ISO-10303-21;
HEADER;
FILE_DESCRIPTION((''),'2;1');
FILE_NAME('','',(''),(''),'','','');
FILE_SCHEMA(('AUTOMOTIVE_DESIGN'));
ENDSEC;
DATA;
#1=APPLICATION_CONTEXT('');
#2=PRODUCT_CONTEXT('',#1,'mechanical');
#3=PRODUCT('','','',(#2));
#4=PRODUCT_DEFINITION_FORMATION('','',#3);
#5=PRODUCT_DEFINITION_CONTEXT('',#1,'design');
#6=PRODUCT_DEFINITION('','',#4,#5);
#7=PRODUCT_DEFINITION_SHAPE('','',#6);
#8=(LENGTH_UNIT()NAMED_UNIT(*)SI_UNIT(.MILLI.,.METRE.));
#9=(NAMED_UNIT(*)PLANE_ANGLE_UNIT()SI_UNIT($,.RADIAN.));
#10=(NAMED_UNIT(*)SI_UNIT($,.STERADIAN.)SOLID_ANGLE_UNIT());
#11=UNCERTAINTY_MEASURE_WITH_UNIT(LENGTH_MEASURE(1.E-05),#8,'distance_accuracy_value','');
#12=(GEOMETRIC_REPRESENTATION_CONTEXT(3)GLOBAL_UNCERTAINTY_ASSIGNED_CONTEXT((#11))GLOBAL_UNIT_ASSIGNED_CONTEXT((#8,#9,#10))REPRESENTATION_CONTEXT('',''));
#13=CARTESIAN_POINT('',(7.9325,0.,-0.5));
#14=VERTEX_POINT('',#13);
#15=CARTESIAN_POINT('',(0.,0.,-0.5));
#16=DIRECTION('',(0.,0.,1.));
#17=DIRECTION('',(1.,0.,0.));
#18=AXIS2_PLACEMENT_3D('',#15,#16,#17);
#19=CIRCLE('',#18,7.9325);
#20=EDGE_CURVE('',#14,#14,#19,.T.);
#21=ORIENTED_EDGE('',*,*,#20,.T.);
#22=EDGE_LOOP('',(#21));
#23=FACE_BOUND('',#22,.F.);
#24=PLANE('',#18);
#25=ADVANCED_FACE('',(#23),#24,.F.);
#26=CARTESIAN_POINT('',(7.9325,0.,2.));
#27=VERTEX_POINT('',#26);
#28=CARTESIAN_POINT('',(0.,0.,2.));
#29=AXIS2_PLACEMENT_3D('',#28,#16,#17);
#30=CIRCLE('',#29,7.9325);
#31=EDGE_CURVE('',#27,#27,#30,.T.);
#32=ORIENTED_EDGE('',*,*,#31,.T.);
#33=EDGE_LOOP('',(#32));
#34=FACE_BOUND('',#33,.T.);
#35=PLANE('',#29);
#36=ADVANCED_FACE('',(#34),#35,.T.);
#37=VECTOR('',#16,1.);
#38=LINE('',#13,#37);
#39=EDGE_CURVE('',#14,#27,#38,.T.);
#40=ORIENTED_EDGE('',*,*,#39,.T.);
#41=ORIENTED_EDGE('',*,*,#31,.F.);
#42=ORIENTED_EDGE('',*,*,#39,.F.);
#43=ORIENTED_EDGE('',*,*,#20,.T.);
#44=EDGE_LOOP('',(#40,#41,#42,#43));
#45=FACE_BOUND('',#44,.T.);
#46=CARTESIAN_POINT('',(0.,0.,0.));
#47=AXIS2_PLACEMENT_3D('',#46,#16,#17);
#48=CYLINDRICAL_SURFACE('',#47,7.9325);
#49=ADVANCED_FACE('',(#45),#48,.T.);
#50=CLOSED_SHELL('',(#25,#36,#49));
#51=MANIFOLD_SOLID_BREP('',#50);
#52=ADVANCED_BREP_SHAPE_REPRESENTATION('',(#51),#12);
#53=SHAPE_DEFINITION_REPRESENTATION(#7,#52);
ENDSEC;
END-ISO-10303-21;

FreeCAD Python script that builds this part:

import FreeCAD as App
import Part
import Sketcher
from FreeCAD import Vector
Q = App.Units.Quantity

doc = App.newDocument("Part")
body = doc.addObject("PartDesign::Body", "Body")

# Sketch on XY plane
sketch1 = body.newObject("Sketcher::SketchObject", "Sketch")
sketch1.AttachmentSupport = (doc.getObject("XY_Plane"), [""])
sketch1.MapMode = "FlatFace"
sketch1.addGeometry(Part.Circle(Vector(0, 0, 0), Vector(0, 0, 1), 7.9325), False)
sketch1.addConstraint([
    Sketcher.Constraint("Coincident", 0, 3, -1, 1),
    Sketcher.Constraint("Diameter", 0, Q("15.865 mm")),
])
pad1 = body.newObject("PartDesign::Pad", "Pad")
pad1.Profile = sketch1
pad1.Length = 2

# Sketch on XY plane
sketch2 = body.newObject("Sketcher::SketchObject", "Sketch001")
sketch2.AttachmentSupport = (doc.getObject("XY_Plane"), [""])
sketch2.MapMode = "FlatFace"
sketch2.addGeometry(Part.Circle(Vector(0, 0, 0), Vector(0, 0, 1), 7.9325), False)
sketch2.addConstraint([
    Sketcher.Constraint("Coincident", 0, 3, -1, 1),
    Sketcher.Constraint("Diameter", 0, Q("15.865 mm")),
])
pad2 = body.newObject("PartDesign::Pad", "Pad001")
pad2.Profile = sketch2
pad2.Length = 0.5
pad2.Reversed = True

doc.recompute()
